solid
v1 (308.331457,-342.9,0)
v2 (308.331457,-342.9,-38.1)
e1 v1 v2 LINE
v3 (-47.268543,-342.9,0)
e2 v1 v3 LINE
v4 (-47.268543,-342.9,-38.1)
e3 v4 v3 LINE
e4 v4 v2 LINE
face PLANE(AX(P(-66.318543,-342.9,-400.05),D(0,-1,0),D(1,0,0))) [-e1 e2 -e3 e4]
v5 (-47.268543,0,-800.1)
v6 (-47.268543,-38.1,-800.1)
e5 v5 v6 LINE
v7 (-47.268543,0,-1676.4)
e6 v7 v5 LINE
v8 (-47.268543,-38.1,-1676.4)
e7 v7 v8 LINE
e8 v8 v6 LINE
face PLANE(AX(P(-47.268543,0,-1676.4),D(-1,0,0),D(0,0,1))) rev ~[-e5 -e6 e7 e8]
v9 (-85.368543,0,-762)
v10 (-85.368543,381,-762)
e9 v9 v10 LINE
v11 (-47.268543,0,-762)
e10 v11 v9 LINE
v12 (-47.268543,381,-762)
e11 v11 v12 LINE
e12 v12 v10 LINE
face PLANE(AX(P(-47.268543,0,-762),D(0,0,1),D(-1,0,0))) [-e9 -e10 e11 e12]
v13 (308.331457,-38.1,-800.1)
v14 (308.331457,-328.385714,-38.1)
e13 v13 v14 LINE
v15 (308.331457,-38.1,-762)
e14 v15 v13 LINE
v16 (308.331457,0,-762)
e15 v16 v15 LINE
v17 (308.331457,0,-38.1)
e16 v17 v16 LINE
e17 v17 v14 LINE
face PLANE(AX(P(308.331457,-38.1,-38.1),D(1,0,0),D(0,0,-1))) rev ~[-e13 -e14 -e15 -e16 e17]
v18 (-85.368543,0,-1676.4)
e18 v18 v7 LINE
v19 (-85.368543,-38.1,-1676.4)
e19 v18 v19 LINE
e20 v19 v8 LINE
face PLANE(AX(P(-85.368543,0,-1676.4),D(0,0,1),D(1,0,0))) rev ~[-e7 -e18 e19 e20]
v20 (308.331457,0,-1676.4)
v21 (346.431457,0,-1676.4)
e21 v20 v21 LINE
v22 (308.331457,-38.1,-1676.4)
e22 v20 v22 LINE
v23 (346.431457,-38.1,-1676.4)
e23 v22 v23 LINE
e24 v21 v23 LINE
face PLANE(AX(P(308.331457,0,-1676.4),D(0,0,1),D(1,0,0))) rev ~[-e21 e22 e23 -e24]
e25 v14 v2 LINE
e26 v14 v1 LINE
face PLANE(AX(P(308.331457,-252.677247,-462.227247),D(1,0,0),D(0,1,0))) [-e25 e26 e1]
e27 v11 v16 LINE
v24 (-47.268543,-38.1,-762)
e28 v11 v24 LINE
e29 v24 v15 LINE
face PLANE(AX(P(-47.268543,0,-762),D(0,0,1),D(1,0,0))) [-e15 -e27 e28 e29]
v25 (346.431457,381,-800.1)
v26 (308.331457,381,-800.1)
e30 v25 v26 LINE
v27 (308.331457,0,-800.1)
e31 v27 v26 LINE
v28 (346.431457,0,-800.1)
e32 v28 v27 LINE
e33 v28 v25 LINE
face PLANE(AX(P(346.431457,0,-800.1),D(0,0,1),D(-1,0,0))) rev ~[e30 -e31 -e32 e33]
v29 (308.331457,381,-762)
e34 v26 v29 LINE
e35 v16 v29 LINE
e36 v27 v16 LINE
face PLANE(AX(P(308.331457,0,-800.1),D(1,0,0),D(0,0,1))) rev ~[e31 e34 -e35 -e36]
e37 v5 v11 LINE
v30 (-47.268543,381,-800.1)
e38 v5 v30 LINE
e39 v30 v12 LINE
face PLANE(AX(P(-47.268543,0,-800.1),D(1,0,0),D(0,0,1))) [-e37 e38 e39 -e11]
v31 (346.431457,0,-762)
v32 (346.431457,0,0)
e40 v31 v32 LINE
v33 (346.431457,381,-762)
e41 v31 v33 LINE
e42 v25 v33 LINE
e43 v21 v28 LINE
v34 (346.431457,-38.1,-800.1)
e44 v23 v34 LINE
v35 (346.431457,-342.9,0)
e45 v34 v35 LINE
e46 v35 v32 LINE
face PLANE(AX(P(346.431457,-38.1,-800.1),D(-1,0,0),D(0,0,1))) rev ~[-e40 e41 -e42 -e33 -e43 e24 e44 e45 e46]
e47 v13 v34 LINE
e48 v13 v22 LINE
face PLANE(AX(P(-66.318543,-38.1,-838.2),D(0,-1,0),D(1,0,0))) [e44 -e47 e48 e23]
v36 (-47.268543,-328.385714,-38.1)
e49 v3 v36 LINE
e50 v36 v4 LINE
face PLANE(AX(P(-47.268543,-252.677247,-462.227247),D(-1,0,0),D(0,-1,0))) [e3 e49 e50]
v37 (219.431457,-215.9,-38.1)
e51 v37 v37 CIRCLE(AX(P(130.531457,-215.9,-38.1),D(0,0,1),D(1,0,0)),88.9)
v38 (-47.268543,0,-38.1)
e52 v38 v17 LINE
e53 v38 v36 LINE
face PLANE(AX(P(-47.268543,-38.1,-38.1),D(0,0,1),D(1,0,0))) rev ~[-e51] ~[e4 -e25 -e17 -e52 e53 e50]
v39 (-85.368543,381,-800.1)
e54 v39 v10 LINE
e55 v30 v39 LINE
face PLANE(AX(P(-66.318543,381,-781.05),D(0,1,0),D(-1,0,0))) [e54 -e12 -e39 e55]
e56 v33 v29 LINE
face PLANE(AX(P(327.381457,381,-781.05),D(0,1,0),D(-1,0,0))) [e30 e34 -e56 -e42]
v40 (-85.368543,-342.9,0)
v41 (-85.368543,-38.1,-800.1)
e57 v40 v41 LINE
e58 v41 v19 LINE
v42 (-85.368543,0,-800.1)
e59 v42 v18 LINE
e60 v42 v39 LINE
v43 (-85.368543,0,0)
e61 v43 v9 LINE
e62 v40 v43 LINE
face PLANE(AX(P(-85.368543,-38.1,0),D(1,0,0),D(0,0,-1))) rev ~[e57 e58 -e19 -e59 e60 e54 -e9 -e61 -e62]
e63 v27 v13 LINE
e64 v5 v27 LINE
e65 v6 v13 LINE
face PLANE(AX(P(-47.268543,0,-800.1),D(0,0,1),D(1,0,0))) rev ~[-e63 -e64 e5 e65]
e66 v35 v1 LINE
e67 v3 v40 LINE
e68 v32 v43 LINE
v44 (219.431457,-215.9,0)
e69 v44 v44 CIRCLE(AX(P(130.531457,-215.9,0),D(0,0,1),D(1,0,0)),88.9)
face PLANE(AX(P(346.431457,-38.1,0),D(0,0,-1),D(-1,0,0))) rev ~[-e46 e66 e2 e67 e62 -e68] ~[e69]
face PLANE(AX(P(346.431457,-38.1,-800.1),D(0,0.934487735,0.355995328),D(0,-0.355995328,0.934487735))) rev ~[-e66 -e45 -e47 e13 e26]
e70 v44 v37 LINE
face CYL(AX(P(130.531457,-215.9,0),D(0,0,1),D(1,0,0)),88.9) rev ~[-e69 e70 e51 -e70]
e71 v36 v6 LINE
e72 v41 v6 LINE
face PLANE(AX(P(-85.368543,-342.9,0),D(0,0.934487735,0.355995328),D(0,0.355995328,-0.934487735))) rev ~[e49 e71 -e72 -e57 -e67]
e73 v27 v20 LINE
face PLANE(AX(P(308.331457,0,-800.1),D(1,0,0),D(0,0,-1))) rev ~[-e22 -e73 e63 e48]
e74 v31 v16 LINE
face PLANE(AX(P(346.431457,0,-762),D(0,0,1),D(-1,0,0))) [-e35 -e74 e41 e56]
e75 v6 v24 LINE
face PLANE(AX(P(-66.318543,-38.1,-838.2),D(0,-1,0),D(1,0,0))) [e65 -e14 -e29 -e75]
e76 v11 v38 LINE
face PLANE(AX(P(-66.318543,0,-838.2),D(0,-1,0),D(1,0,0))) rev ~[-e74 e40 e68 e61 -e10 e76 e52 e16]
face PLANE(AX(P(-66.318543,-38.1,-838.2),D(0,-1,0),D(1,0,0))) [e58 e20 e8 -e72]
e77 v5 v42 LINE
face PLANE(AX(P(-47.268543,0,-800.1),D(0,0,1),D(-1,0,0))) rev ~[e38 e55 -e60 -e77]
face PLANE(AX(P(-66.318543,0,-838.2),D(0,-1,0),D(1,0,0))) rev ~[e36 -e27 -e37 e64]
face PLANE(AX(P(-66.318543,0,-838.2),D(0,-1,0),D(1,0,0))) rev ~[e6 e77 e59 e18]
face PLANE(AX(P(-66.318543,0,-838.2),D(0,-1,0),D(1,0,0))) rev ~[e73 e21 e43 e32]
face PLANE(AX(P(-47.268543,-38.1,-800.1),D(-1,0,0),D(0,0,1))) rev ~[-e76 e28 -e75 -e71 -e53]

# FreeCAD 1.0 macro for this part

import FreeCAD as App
import Part
import Sketcher
from FreeCAD import Vector
Q = App.Units.Quantity

doc = App.newDocument("Part")
body = doc.addObject("PartDesign::Body", "Body")

# Sketch on XZ plane
sketch1 = doc.addObject("Sketcher::SketchObject", "Sketch")
body.addObject(sketch1)
sketch1.AttachmentSupport = (doc.XZ_Plane, [""])
sketch1.MapMode = "FlatFace"
sketch1.addGeometry([
    Part.LineSegment(Vector(-85, 0, 0), Vector(-85, -1676, 0)),  # 0
    Part.LineSegment(Vector(-85, -1676, 0), Vector(-47, -1676, 0)),  # 1
    Part.LineSegment(Vector(-47, -1676, 0), Vector(-47, -800, 0)),  # 2
    Part.LineSegment(Vector(-47, -800, 0), Vector(308, -800, 0)),  # 3
    Part.LineSegment(Vector(308, -800, 0), Vector(308, -1676, 0)),  # 4
    Part.LineSegment(Vector(308, -1676, 0), Vector(346, -1676, 0)),  # 5
    Part.LineSegment(Vector(346, -1676, 0), Vector(346, 0, 0)),  # 6
    Part.LineSegment(Vector(346, 0, 0), Vector(-85, 0, 0)),  # 7
    Part.LineSegment(Vector(-47, -762, 0), Vector(-47, -38, 0)),  # 8
    Part.LineSegment(Vector(-47, -38, 0), Vector(308, -38, 0)),  # 9
    Part.LineSegment(Vector(308, -38, 0), Vector(308, -762, 0)),  # 10
    Part.LineSegment(Vector(308, -762, 0), Vector(-47, -762, 0)),  # 11
], False)
sketch1.addConstraint([
    Sketcher.Constraint("Coincident", 0, 2, 1, 1),
    Sketcher.Constraint("Coincident", 1, 2, 2, 1),
    Sketcher.Constraint("Coincident", 2, 2, 3, 1),
    Sketcher.Constraint("Coincident", 3, 2, 4, 1),
    Sketcher.Constraint("Coincident", 4, 2, 5, 1),
    Sketcher.Constraint("Coincident", 5, 2, 6, 1),
    Sketcher.Constraint("Coincident", 6, 2, 7, 1),
    Sketcher.Constraint("Coincident", 7, 2, 0, 1),
    Sketcher.Constraint("Coincident", 8, 2, 9, 1),
    Sketcher.Constraint("Coincident", 9, 2, 10, 1),
    Sketcher.Constraint("Coincident", 10, 2, 11, 1),
    Sketcher.Constraint("Coincident", 11, 2, 8, 1),
    Sketcher.Constraint("Vertical", 0),
    Sketcher.Constraint("Horizontal", 1),
    Sketcher.Constraint("Vertical", 2),
    Sketcher.Constraint("Horizontal", 3),
    Sketcher.Constraint("Vertical", 4),
    Sketcher.Constraint("Horizontal", 5),
    Sketcher.Constraint("Vertical", 6),
    Sketcher.Constraint("Horizontal", 7),
    Sketcher.Constraint("Vertical", 8),
    Sketcher.Constraint("Horizontal", 9),
    Sketcher.Constraint("Vertical", 10),
    Sketcher.Constraint("Horizontal", 11),
    Sketcher.Constraint("PointOnObject", 6, 2, -1),
    Sketcher.Constraint("Horizontal", 1, 2, 4, 2),
    Sketcher.Constraint("Vertical", 2, 2, 8, 2),
    Sketcher.Constraint("Vertical", 4, 2, 9, 2),
    Sketcher.Constraint("Equal", 1, 5),
    Sketcher.Constraint("DistanceX", 3, 1, 3, 2, Q("14 in")),
    Sketcher.Constraint("DistanceX", 7, 2, 7, 1, Q("17 in")),
    Sketcher.Constraint("DistanceY", 0, 2, 0, 1, Q("66 in")),
    Sketcher.Constraint("DistanceY", 2, 1, 2, 2, Q("34.5 in")),
    Sketcher.Constraint("DistanceY", 8, 1, 8, 2, Q("28.5 in")),
    Sketcher.Constraint("DistanceY", 10, 2, -1, 1, Q("30 in")),
    Sketcher.Constraint("DistanceX", 0, 2, -1, 1, Q("85.368543 mm")),
])
pad1 = doc.addObject("PartDesign::Pad", "Pad")
body.addObject(pad1)
pad1.Profile = sketch1
pad1.Length = Q("1.5 in")

# Sketch on XZ plane
sketch2 = doc.addObject("Sketcher::SketchObject", "Sketch001")
body.addObject(sketch2)
sketch2.AttachmentSupport = (doc.XZ_Plane, [""])
sketch2.MapMode = "FlatFace"
sketch2.addGeometry([
    Part.LineSegment(Vector(346, -762, 0), Vector(346, -800, 0)),  # 0
    Part.LineSegment(Vector(346, -800, 0), Vector(308, -800, 0)),  # 1
    Part.LineSegment(Vector(308, -800, 0), Vector(308, -762, 0)),  # 2
    Part.LineSegment(Vector(308, -762, 0), Vector(346, -762, 0)),  # 3
    Part.LineSegment(Vector(-47, -762, 0), Vector(-47, -800, 0)),  # 4
    Part.LineSegment(Vector(-47, -800, 0), Vector(-85, -800, 0)),  # 5
    Part.LineSegment(Vector(-85, -800, 0), Vector(-85, -762, 0)),  # 6
    Part.LineSegment(Vector(-85, -762, 0), Vector(-47, -762, 0)),  # 7
], False)
sketch2.addConstraint([
    Sketcher.Constraint("Coincident", 0, 2, 1, 1),
    Sketcher.Constraint("Coincident", 1, 2, 2, 1),
    Sketcher.Constraint("Coincident", 2, 2, 3, 1),
    Sketcher.Constraint("Coincident", 3, 2, 0, 1),
    Sketcher.Constraint("Coincident", 4, 2, 5, 1),
    Sketcher.Constraint("Coincident", 5, 2, 6, 1),
    Sketcher.Constraint("Coincident", 6, 2, 7, 1),
    Sketcher.Constraint("Coincident", 7, 2, 4, 1),
    Sketcher.Constraint("Vertical", 0),
    Sketcher.Constraint("Horizontal", 1),
    Sketcher.Constraint("Vertical", 2),
    Sketcher.Constraint("Horizontal", 3),
    Sketcher.Constraint("Vertical", 4),
    Sketcher.Constraint("Horizontal", 5),
    Sketcher.Constraint("Vertical", 6),
    Sketcher.Constraint("Horizontal", 7),
    Sketcher.Constraint("Horizontal", 1, 2, 4, 2),
    Sketcher.Constraint("Horizontal", 3, 2, 6, 2),
    Sketcher.Constraint("Equal", 3, 5),
    Sketcher.Constraint("Equal", 7, 0),
    Sketcher.Constraint("DistanceX", 1, 2, 1, 1, Q("1.5 in")),
    Sketcher.Constraint("DistanceY", 2, 2, -1, 1, Q("30 in")),
    Sketcher.Constraint("DistanceX", 4, 2, 1, 2, Q("14 in")),
    Sketcher.Constraint("DistanceX", -1, 1, 0, 2, Q("346.431457 mm")),
])
pad2 = doc.addObject("PartDesign::Pad", "Pad001")
body.addObject(pad2)
pad2.Profile = sketch2
pad2.Length = Q("15 in")
pad2.Reversed = True

# Sketch on XZ plane
sketch3 = doc.addObject("Sketcher::SketchObject", "Sketch002")
body.addObject(sketch3)
sketch3.AttachmentSupport = (doc.XZ_Plane, [""])
sketch3.MapMode = "FlatFace"
sketch3.AttachmentOffset = App.Placement(Vector(0, 0, 1.5 * 25.4), App.Rotation())
sketch3.addGeometry([
    Part.LineSegment(Vector(-85, 0, 0), Vector(-85, -800, 0)),  # 0
    Part.LineSegment(Vector(-85, -800, 0), Vector(-47, -800, 0)),  # 1
    Part.LineSegment(Vector(-47, -800, 0), Vector(-47, -38, 0)),  # 2
    Part.LineSegment(Vector(-47, -38, 0), Vector(308, -38, 0)),  # 3
    Part.LineSegment(Vector(308, -38, 0), Vector(308, -800, 0)),  # 4
    Part.LineSegment(Vector(308, -800, 0), Vector(346, -800, 0)),  # 5
    Part.LineSegment(Vector(346, -800, 0), Vector(346, 0, 0)),  # 6
    Part.LineSegment(Vector(346, 0, 0), Vector(-85, 0, 0)),  # 7
], False)
sketch3.addConstraint([
    Sketcher.Constraint("Coincident", 0, 2, 1, 1),
    Sketcher.Constraint("Coincident", 1, 2, 2, 1),
    Sketcher.Constraint("Coincident", 2, 2, 3, 1),
    Sketcher.Constraint("Coincident", 3, 2, 4, 1),
    Sketcher.Constraint("Coincident", 4, 2, 5, 1),
    Sketcher.Constraint("Coincident", 5, 2, 6, 1),
    Sketcher.Constraint("Coincident", 6, 2, 7, 1),
    Sketcher.Constraint("Coincident", 7, 2, 0, 1),
    Sketcher.Constraint("Vertical", 0),
    Sketcher.Constraint("Horizontal", 1),
    Sketcher.Constraint("Vertical", 2),
    Sketcher.Constraint("Horizontal", 3),
    Sketcher.Constraint("Vertical", 4),
    Sketcher.Constraint("Horizontal", 5),
    Sketcher.Constraint("Vertical", 6),
    Sketcher.Constraint("Horizontal", 7),
    Sketcher.Constraint("PointOnObject", 6, 2, -1),
    Sketcher.Constraint("Horizontal", 1, 2, 4, 2),
    Sketcher.Constraint("Equal", 1, 5),
    Sketcher.Constraint("DistanceX", 3, 1, 3, 2, Q("14 in")),
    Sketcher.Constraint("DistanceX", 7, 2, 7, 1, Q("17 in")),
    Sketcher.Constraint("DistanceY", 2, 1, 2, 2, Q("30 in")),
    Sketcher.Constraint("DistanceY", 0, 2, 0, 1, Q("31.5 in")),
    Sketcher.Constraint("DistanceX", 0, 2, -1, 1, Q("85.368543 mm")),
])
pad3 = doc.addObject("PartDesign::Pad", "Pad002")
body.addObject(pad3)
pad3.Profile = sketch3
pad3.Length = Q("12 in")

# Sketch on YZ plane
sketch4 = doc.addObject("Sketcher::SketchObject", "Sketch003")
body.addObject(sketch4)
sketch4.AttachmentSupport = (doc.YZ_Plane, [""])
sketch4.MapMode = "FlatFace"
sketch4.AttachmentOffset = App.Placement(Vector(0, 0, -85.368543), App.Rotation())
sketch4.addGeometry([
    Part.LineSegment(Vector(-343, 0, 0), Vector(-38, -800, 0)),
    Part.LineSegment(Vector(-38, -800, 0), Vector(-343, -800, 0)),
    Part.LineSegment(Vector(-343, -800, 0), Vector(-343, 0, 0)),
], False)
sketch4.addConstraint([
    Sketcher.Constraint("Coincident", 0, 2, 1, 1),
    Sketcher.Constraint("Coincident", 1, 2, 2, 1),
    Sketcher.Constraint("Coincident", 2, 2, 0, 1),
    Sketcher.Constraint("Horizontal", 1),
    Sketcher.Constraint("Vertical", 2),
    Sketcher.Constraint("PointOnObject", 2, 2, -1),
    Sketcher.Constraint("DistanceX", 1, 2, 1, 1, Q("12 in")),
    Sketcher.Constraint("DistanceY", 2, 1, 2, 2, Q("31.5 in")),
    Sketcher.Constraint("DistanceX", 0, 2, -1, 1, Q("1.5 in")),
])
pocket1 = doc.addObject("PartDesign::Pocket", "Pocket")
body.addObject(pocket1)
pocket1.Profile = sketch4
pocket1.Length = Q("1.5 in")
pocket1.Reversed = True

# Sketch on YZ plane
sketch5 = doc.addObject("Sketcher::SketchObject", "Sketch004")
body.addObject(sketch5)
sketch5.AttachmentSupport = (doc.YZ_Plane, [""])
sketch5.MapMode = "FlatFace"
sketch5.AttachmentOffset = App.Placement(Vector(0, 0, 346.431457), App.Rotation())
sketch5.addGeometry([
    Part.LineSegment(Vector(-343, -800, 0), Vector(-38, -800, 0)),
    Part.LineSegment(Vector(-38, -800, 0), Vector(-343, 0, 0)),
    Part.LineSegment(Vector(-343, 0, 0), Vector(-343, -800, 0)),
], False)
sketch5.addConstraint([
    Sketcher.Constraint("Coincident", 0, 2, 1, 1),
    Sketcher.Constraint("Coincident", 1, 2, 2, 1),
    Sketcher.Constraint("Coincident", 2, 2, 0, 1),
    Sketcher.Constraint("Horizontal", 0),
    Sketcher.Constraint("Vertical", 2),
    Sketcher.Constraint("PointOnObject", 1, 2, -1),
    Sketcher.Constraint("DistanceX", 0, 1, 0, 2, Q("12 in")),
    Sketcher.Constraint("DistanceY", 2, 2, 2, 1, Q("31.5 in")),
    Sketcher.Constraint("DistanceX", 0, 2, -1, 1, Q("1.5 in")),
])
pocket2 = doc.addObject("PartDesign::Pocket", "Pocket001")
body.addObject(pocket2)
pocket2.Profile = sketch5
pocket2.Length = Q("1.5 in")

# Sketch on XY plane
sketch6 = doc.addObject("Sketcher::SketchObject", "Sketch005")
body.addObject(sketch6)
sketch6.AttachmentSupport = (doc.XY_Plane, [""])
sketch6.MapMode = "FlatFace"
sketch6.addGeometry(Part.Circle(Vector(131, -216, 0), Vector(0, 0, 1), 89), False)
sketch6.addConstraint([
    Sketcher.Constraint("Diameter", 0, Q("7 in")),
    Sketcher.Constraint("DistanceY", 0, 3, -1, 1, Q("8.5 in")),
    Sketcher.Constraint("DistanceX", -1, 1, 0, 3, Q("130.531457 mm")),
])
pocket3 = doc.addObject("PartDesign::Pocket", "Pocket002")
body.addObject(pocket3)
pocket3.Profile = sketch6
pocket3.Length = Q("1.5 in")

doc.recompute()
